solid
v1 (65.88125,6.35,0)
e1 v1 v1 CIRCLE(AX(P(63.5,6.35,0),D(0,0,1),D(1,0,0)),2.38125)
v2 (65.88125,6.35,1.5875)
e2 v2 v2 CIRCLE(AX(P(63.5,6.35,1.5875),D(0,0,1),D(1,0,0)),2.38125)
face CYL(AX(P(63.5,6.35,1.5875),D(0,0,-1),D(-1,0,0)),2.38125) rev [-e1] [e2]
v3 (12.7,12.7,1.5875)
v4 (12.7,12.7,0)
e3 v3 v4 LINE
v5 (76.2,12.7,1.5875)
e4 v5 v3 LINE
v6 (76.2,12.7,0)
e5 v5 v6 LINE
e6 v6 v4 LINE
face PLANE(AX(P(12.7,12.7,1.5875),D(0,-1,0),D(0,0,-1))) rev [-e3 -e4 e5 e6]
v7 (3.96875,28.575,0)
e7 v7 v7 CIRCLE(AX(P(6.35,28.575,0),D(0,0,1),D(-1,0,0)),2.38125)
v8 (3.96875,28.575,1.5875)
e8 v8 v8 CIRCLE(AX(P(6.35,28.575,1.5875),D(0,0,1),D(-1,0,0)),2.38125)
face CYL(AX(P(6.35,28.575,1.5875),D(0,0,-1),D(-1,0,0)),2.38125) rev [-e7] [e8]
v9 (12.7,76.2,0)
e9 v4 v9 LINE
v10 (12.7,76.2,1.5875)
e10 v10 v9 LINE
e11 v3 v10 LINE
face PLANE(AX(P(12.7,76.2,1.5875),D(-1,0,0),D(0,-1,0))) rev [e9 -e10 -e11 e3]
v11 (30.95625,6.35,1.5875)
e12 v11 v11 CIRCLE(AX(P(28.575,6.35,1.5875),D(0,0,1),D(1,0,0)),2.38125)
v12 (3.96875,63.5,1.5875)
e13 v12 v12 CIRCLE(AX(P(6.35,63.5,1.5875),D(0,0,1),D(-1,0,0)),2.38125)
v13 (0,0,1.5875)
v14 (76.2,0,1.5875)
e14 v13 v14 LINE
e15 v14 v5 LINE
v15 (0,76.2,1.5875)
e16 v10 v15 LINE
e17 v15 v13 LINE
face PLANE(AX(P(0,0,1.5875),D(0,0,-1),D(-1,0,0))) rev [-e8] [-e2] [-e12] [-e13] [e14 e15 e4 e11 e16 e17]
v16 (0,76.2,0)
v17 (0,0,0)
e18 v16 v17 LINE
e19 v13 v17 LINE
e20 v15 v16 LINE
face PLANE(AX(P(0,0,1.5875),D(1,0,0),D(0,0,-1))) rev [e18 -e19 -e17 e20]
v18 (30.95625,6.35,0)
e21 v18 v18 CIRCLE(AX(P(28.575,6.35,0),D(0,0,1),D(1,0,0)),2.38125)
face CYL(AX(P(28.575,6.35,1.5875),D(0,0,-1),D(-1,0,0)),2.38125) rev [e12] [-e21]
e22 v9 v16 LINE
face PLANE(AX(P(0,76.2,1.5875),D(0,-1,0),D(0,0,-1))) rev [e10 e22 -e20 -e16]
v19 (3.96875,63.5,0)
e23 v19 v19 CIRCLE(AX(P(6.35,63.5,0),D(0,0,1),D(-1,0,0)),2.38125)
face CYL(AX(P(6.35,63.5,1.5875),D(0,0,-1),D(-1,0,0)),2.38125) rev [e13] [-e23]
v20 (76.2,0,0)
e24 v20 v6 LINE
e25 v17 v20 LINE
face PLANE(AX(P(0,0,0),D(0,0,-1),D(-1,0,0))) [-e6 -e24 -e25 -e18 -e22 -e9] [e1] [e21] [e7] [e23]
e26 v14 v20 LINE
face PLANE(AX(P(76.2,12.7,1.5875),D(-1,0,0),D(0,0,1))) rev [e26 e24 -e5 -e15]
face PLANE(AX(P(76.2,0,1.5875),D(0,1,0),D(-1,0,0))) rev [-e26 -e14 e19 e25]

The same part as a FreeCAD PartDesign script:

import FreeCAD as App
import Part
import Sketcher
Q = App.Units.Quantity


def add_polygon(sketch, points):
    """Adds a closed chain of lines whose ends are joined by coincident constraints."""
    first, n = sketch.GeometryCount, len(points)
    for a, b in zip(points, points[1:] + points[:1]):
        sketch.addGeometry(Part.LineSegment(App.Vector(*a, 0), App.Vector(*b, 0)), False)
    for i in range(n):
        sketch.addConstraint(Sketcher.Constraint("Coincident", first + i, 2, first + (i + 1) % n, 1))

doc = App.newDocument("Part")
params = doc.addObject("Spreadsheet::Sheet", "Params")
for row, (alias, value) in enumerate([
    ("sketch1_width", "3 in"),
    ("sketch1_diameter", "0.1875 in"),
    ("sketch1_width2", "2.5 in"),
    ("pad1_length", "0.0625 in"),
], start=1):
    params.set(f"A{row}", alias)
    params.set(f"B{row}", "=" + value)
    params.setAlias(f"B{row}", alias)

body = doc.addObject("PartDesign::Body", "Body")

# Sketch on XY plane
sketch1 = doc.addObject("Sketcher::SketchObject", "Sketch")
body.addObject(sketch1)
sketch1.AttachmentSupport = (doc.XY_Plane, [""])
sketch1.MapMode = "FlatFace"
add_polygon(sketch1, [(0, 76.2), (0, 0), (76.2, 0), (76.2, 12.7), (12.7, 12.7), (12.7, 76.2)])  # lines 0-5
sketch1.addGeometry(Part.Circle(App.Vector(63.5, 6.3, 0), App.Vector(0, 0, 1), 2.4), False)  # 6
sketch1.addGeometry(Part.Circle(App.Vector(28.6, 6.3, 0), App.Vector(0, 0, 1), 2.4), False)  # 7
sketch1.addGeometry(Part.Circle(App.Vector(6.3, 28.6, 0), App.Vector(0, 0, 1), 2.4), False)  # 8
sketch1.addGeometry(Part.Circle(App.Vector(6.3, 63.5, 0), App.Vector(0, 0, 1), 2.4), False)  # 9
sketch1.addConstraint([
    Sketcher.Constraint("Vertical", 0),
    Sketcher.Constraint("Horizontal", 1),
    Sketcher.Constraint("Vertical", 2),
    Sketcher.Constraint("Horizontal", 3),
    Sketcher.Constraint("Vertical", 4),
    Sketcher.Constraint("Horizontal", 5),
    Sketcher.Constraint("Coincident", 0, 2, -1, 1),
    Sketcher.Constraint("Equal", 6, 7),
    Sketcher.Constraint("Equal", 7, 8),
    Sketcher.Constraint("Equal", 8, 9),
    Sketcher.Constraint("Horizontal", 6, 3, 7, 3),
    Sketcher.Constraint("Vertical", 8, 3, 9, 3),
    Sketcher.Constraint("Equal", 1, 0),
    Sketcher.Constraint("Equal", 5, 2),
    Sketcher.Constraint("DistanceX", 1, 1, 1, 2, Q("3 in")),
    Sketcher.Constraint("Diameter", 6, Q("0.1875 in")),
    Sketcher.Constraint("DistanceX", 3, 2, 3, 1, Q("2.5 in")),
    Sketcher.Constraint("DistanceX", 3, 2, 6, 3, Q("2 in")),
    Sketcher.Constraint("DistanceY", 3, 2, 9, 3, Q("2 in")),
    Sketcher.Constraint("DistanceY", -1, 1, 6, 3, Q("0.25 in")),
    Sketcher.Constraint("DistanceX", -1, 1, 8, 3, Q("0.25 in")),
    Sketcher.Constraint("DistanceX", -1, 1, 7, 3, Q("1.125 in")),
    Sketcher.Constraint("DistanceY", -1, 1, 8, 3, Q("1.125 in")),
])
sketch1.setExpression("Constraints[20]", "Params.sketch1_width")
sketch1.setExpression("Constraints[21]", "Params.sketch1_diameter")
sketch1.setExpression("Constraints[22]", "Params.sketch1_width2")
pad1 = doc.addObject("PartDesign::Pad", "Pad")
body.addObject(pad1)
pad1.Profile = sketch1
pad1.setExpression("Length", "Params.pad1_length")

doc.recompute()
